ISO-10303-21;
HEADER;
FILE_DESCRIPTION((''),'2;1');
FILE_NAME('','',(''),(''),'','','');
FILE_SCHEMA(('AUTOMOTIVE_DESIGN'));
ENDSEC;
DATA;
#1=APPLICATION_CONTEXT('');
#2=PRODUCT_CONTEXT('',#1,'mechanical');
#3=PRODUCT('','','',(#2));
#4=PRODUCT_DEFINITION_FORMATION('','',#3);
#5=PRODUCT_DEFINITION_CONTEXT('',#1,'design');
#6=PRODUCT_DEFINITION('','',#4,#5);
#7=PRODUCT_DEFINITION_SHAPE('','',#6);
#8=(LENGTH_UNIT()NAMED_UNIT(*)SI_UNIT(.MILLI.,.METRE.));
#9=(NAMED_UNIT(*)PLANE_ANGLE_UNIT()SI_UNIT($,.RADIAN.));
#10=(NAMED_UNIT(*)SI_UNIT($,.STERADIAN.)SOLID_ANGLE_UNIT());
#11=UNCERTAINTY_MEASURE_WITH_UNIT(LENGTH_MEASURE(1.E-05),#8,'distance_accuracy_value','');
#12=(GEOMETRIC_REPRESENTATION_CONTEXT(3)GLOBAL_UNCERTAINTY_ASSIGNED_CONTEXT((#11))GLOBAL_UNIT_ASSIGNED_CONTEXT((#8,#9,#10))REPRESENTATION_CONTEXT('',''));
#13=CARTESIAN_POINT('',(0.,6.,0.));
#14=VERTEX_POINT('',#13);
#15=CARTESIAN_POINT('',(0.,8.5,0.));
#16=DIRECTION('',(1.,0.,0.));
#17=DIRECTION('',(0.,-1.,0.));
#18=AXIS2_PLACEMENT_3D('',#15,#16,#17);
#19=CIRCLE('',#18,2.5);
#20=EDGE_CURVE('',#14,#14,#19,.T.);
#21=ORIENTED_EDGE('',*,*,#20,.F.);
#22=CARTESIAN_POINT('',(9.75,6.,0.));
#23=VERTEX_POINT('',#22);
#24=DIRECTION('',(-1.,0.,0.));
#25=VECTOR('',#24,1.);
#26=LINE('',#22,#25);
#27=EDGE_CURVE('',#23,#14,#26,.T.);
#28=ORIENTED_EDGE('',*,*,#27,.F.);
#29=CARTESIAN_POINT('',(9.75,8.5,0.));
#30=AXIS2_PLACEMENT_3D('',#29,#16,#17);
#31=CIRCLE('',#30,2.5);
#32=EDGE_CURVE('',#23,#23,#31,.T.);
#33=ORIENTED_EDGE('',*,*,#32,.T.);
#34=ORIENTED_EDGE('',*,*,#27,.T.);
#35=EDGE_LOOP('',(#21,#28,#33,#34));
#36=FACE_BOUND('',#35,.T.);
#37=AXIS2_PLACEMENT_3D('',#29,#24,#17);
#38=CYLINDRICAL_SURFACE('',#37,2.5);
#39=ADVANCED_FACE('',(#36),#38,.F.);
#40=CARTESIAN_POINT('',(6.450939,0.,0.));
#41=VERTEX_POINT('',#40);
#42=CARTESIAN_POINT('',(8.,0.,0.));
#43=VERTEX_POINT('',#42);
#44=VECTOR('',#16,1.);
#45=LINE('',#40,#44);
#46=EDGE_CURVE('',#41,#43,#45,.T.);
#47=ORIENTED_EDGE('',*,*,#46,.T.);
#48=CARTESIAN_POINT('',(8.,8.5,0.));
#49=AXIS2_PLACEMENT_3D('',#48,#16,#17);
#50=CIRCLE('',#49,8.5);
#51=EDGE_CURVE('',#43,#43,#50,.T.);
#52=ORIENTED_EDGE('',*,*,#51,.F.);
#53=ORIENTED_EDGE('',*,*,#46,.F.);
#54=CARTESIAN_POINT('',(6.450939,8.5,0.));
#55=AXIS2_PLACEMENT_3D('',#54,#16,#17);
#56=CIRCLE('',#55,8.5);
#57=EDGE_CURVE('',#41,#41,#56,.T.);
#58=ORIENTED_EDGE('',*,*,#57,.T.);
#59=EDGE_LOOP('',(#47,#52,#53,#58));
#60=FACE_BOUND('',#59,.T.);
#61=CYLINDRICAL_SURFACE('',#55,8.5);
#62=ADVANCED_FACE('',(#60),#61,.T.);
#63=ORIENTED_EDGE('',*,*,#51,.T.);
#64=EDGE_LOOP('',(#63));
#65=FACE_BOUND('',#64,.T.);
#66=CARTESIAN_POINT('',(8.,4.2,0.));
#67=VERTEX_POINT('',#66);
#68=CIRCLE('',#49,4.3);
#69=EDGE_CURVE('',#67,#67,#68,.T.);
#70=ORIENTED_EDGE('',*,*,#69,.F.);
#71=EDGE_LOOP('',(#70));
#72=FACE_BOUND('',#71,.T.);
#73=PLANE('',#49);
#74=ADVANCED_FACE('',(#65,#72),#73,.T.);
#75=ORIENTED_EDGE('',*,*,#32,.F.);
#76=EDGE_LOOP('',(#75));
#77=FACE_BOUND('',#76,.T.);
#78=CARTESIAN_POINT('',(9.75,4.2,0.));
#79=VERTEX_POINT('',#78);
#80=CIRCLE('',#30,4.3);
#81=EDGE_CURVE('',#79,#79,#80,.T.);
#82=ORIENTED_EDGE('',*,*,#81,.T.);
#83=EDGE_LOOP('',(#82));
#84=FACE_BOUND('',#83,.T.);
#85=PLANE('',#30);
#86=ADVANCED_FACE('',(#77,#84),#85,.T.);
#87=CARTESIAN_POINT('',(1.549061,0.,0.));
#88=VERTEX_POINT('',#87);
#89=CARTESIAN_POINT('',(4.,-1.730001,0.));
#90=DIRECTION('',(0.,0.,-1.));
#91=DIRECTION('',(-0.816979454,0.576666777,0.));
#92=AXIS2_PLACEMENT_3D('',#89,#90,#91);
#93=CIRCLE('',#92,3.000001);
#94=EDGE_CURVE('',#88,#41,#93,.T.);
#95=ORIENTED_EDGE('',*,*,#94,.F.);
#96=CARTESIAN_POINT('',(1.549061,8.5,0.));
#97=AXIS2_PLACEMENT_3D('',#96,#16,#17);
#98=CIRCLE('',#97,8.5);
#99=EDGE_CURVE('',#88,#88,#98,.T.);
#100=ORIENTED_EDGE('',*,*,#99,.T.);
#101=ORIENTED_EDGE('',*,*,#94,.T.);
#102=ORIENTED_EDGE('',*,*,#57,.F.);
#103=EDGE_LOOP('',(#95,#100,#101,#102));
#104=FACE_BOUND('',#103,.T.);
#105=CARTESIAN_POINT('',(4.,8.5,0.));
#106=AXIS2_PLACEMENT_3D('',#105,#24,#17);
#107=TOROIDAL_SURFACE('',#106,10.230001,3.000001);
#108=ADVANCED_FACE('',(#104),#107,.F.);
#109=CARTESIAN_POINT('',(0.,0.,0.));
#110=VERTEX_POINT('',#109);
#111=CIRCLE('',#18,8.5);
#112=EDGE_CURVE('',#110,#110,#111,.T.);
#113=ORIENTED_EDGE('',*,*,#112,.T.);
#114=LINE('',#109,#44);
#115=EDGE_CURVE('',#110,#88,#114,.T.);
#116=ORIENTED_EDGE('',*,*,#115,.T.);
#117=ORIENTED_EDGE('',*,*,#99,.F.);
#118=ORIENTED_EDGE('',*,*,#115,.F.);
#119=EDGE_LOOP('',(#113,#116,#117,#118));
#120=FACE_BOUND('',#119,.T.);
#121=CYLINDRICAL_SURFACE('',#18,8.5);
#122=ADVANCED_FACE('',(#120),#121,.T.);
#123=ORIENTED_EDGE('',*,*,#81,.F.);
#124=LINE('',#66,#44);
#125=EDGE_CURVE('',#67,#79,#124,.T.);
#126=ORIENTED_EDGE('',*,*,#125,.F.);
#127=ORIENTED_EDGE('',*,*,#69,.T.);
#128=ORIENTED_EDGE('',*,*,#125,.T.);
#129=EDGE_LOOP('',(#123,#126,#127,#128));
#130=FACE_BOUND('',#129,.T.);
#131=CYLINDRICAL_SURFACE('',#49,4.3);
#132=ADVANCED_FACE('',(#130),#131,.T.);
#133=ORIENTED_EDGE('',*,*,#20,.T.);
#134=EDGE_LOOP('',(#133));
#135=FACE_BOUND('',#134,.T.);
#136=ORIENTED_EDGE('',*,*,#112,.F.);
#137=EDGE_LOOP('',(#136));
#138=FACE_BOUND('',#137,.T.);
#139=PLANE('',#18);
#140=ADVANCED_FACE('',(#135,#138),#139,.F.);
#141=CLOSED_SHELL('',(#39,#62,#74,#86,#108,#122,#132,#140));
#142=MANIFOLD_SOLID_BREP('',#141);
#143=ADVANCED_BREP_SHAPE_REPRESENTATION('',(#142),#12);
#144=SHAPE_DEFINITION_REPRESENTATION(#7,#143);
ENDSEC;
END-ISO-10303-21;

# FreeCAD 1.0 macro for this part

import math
import FreeCAD as App
import Part
import Sketcher
from FreeCAD import Vector
Q = App.Units.Quantity

doc = App.newDocument("Part")
body = doc.addObject("PartDesign::Body", "Body")

sketch1 = body.newObject("Sketcher::SketchObject", "Sketch")
sketch1.AttachmentSupport = (doc.getObject("XY_Plane"), [""])
sketch1.MapMode = "FlatFace"
sketch1.addGeometry([
    Part.LineSegment(Vector(0, 6, 0), Vector(0, 0, 0)),
    Part.LineSegment(Vector(0, 0, 0), Vector(1.549061, 0, 0)),
    Part.ArcOfCircle(Part.Circle(Vector(4, -1.730001, 0), Vector(0, 0, 1), 3.000001), math.radians(35.216441), math.radians(144.783559)),
    Part.LineSegment(Vector(6.450939, 0, 0), Vector(8, 0, 0)),
    Part.LineSegment(Vector(8, 0, 0), Vector(8, 4.2, 0)),
    Part.LineSegment(Vector(8, 4.2, 0), Vector(9.75, 4.2, 0)),
    Part.LineSegment(Vector(9.75, 4.2, 0), Vector(9.75, 6, 0)),
    Part.LineSegment(Vector(9.75, 6, 0), Vector(0, 6, 0)),
], False)
sketch1.addGeometry(Part.LineSegment(Vector(0, 8.5, 0), Vector(9.75, 8.5, 0)), True)
sketch1.addConstraint([
    Sketcher.Constraint("Coincident", 0, 2, 1, 1),
    Sketcher.Constraint("Coincident", 1, 2, 2, 2),
    Sketcher.Constraint("Coincident", 2, 1, 3, 1),
    Sketcher.Constraint("Coincident", 3, 2, 4, 1),
    Sketcher.Constraint("Coincident", 4, 2, 5, 1),
    Sketcher.Constraint("Coincident", 5, 2, 6, 1),
    Sketcher.Constraint("Coincident", 6, 2, 7, 1),
    Sketcher.Constraint("Coincident", 7, 2, 0, 1),
    Sketcher.Constraint("Vertical", 0),
    Sketcher.Constraint("Horizontal", 1),
    Sketcher.Constraint("Horizontal", 3),
    Sketcher.Constraint("Vertical", 4),
    Sketcher.Constraint("Horizontal", 5),
    Sketcher.Constraint("Vertical", 6),
    Sketcher.Constraint("Horizontal", 7),
    Sketcher.Constraint("Horizontal", 8),
    Sketcher.Constraint("Coincident", 0, 2, -1, 1),
    Sketcher.Constraint("PointOnObject", 2, 1, -1),
    Sketcher.Constraint("PointOnObject", 8, 1, -2),
    Sketcher.Constraint("Vertical", 6, 2, 8, 2),
    Sketcher.Constraint("Equal", 1, 3),
    Sketcher.Constraint("Radius", 2, Q("3.000001 mm")),
    Sketcher.Constraint("DistanceY", 0, 2, 0, 1, Q("6 mm")),
    Sketcher.Constraint("DistanceY", 4, 1, 4, 2, Q("4.2 mm")),
    Sketcher.Constraint("DistanceX", -1, 1, 2, 3, Q("4 mm")),
    Sketcher.Constraint("DistanceX", 5, 1, 5, 2, Q("1.75 mm")),
    Sketcher.Constraint("DistanceY", -1, 1, 8, 1, Q("8.5 mm")),
    Sketcher.Constraint("DistanceY", 2, 3, -1, 1, Q("1.730001 mm")),
])
revolution = body.newObject("PartDesign::Revolution", "Revolution")
revolution.Profile = sketch1
revolution.ReferenceAxis = (sketch1, ["Axis0"])
revolution.Angle = 360

doc.recompute()
